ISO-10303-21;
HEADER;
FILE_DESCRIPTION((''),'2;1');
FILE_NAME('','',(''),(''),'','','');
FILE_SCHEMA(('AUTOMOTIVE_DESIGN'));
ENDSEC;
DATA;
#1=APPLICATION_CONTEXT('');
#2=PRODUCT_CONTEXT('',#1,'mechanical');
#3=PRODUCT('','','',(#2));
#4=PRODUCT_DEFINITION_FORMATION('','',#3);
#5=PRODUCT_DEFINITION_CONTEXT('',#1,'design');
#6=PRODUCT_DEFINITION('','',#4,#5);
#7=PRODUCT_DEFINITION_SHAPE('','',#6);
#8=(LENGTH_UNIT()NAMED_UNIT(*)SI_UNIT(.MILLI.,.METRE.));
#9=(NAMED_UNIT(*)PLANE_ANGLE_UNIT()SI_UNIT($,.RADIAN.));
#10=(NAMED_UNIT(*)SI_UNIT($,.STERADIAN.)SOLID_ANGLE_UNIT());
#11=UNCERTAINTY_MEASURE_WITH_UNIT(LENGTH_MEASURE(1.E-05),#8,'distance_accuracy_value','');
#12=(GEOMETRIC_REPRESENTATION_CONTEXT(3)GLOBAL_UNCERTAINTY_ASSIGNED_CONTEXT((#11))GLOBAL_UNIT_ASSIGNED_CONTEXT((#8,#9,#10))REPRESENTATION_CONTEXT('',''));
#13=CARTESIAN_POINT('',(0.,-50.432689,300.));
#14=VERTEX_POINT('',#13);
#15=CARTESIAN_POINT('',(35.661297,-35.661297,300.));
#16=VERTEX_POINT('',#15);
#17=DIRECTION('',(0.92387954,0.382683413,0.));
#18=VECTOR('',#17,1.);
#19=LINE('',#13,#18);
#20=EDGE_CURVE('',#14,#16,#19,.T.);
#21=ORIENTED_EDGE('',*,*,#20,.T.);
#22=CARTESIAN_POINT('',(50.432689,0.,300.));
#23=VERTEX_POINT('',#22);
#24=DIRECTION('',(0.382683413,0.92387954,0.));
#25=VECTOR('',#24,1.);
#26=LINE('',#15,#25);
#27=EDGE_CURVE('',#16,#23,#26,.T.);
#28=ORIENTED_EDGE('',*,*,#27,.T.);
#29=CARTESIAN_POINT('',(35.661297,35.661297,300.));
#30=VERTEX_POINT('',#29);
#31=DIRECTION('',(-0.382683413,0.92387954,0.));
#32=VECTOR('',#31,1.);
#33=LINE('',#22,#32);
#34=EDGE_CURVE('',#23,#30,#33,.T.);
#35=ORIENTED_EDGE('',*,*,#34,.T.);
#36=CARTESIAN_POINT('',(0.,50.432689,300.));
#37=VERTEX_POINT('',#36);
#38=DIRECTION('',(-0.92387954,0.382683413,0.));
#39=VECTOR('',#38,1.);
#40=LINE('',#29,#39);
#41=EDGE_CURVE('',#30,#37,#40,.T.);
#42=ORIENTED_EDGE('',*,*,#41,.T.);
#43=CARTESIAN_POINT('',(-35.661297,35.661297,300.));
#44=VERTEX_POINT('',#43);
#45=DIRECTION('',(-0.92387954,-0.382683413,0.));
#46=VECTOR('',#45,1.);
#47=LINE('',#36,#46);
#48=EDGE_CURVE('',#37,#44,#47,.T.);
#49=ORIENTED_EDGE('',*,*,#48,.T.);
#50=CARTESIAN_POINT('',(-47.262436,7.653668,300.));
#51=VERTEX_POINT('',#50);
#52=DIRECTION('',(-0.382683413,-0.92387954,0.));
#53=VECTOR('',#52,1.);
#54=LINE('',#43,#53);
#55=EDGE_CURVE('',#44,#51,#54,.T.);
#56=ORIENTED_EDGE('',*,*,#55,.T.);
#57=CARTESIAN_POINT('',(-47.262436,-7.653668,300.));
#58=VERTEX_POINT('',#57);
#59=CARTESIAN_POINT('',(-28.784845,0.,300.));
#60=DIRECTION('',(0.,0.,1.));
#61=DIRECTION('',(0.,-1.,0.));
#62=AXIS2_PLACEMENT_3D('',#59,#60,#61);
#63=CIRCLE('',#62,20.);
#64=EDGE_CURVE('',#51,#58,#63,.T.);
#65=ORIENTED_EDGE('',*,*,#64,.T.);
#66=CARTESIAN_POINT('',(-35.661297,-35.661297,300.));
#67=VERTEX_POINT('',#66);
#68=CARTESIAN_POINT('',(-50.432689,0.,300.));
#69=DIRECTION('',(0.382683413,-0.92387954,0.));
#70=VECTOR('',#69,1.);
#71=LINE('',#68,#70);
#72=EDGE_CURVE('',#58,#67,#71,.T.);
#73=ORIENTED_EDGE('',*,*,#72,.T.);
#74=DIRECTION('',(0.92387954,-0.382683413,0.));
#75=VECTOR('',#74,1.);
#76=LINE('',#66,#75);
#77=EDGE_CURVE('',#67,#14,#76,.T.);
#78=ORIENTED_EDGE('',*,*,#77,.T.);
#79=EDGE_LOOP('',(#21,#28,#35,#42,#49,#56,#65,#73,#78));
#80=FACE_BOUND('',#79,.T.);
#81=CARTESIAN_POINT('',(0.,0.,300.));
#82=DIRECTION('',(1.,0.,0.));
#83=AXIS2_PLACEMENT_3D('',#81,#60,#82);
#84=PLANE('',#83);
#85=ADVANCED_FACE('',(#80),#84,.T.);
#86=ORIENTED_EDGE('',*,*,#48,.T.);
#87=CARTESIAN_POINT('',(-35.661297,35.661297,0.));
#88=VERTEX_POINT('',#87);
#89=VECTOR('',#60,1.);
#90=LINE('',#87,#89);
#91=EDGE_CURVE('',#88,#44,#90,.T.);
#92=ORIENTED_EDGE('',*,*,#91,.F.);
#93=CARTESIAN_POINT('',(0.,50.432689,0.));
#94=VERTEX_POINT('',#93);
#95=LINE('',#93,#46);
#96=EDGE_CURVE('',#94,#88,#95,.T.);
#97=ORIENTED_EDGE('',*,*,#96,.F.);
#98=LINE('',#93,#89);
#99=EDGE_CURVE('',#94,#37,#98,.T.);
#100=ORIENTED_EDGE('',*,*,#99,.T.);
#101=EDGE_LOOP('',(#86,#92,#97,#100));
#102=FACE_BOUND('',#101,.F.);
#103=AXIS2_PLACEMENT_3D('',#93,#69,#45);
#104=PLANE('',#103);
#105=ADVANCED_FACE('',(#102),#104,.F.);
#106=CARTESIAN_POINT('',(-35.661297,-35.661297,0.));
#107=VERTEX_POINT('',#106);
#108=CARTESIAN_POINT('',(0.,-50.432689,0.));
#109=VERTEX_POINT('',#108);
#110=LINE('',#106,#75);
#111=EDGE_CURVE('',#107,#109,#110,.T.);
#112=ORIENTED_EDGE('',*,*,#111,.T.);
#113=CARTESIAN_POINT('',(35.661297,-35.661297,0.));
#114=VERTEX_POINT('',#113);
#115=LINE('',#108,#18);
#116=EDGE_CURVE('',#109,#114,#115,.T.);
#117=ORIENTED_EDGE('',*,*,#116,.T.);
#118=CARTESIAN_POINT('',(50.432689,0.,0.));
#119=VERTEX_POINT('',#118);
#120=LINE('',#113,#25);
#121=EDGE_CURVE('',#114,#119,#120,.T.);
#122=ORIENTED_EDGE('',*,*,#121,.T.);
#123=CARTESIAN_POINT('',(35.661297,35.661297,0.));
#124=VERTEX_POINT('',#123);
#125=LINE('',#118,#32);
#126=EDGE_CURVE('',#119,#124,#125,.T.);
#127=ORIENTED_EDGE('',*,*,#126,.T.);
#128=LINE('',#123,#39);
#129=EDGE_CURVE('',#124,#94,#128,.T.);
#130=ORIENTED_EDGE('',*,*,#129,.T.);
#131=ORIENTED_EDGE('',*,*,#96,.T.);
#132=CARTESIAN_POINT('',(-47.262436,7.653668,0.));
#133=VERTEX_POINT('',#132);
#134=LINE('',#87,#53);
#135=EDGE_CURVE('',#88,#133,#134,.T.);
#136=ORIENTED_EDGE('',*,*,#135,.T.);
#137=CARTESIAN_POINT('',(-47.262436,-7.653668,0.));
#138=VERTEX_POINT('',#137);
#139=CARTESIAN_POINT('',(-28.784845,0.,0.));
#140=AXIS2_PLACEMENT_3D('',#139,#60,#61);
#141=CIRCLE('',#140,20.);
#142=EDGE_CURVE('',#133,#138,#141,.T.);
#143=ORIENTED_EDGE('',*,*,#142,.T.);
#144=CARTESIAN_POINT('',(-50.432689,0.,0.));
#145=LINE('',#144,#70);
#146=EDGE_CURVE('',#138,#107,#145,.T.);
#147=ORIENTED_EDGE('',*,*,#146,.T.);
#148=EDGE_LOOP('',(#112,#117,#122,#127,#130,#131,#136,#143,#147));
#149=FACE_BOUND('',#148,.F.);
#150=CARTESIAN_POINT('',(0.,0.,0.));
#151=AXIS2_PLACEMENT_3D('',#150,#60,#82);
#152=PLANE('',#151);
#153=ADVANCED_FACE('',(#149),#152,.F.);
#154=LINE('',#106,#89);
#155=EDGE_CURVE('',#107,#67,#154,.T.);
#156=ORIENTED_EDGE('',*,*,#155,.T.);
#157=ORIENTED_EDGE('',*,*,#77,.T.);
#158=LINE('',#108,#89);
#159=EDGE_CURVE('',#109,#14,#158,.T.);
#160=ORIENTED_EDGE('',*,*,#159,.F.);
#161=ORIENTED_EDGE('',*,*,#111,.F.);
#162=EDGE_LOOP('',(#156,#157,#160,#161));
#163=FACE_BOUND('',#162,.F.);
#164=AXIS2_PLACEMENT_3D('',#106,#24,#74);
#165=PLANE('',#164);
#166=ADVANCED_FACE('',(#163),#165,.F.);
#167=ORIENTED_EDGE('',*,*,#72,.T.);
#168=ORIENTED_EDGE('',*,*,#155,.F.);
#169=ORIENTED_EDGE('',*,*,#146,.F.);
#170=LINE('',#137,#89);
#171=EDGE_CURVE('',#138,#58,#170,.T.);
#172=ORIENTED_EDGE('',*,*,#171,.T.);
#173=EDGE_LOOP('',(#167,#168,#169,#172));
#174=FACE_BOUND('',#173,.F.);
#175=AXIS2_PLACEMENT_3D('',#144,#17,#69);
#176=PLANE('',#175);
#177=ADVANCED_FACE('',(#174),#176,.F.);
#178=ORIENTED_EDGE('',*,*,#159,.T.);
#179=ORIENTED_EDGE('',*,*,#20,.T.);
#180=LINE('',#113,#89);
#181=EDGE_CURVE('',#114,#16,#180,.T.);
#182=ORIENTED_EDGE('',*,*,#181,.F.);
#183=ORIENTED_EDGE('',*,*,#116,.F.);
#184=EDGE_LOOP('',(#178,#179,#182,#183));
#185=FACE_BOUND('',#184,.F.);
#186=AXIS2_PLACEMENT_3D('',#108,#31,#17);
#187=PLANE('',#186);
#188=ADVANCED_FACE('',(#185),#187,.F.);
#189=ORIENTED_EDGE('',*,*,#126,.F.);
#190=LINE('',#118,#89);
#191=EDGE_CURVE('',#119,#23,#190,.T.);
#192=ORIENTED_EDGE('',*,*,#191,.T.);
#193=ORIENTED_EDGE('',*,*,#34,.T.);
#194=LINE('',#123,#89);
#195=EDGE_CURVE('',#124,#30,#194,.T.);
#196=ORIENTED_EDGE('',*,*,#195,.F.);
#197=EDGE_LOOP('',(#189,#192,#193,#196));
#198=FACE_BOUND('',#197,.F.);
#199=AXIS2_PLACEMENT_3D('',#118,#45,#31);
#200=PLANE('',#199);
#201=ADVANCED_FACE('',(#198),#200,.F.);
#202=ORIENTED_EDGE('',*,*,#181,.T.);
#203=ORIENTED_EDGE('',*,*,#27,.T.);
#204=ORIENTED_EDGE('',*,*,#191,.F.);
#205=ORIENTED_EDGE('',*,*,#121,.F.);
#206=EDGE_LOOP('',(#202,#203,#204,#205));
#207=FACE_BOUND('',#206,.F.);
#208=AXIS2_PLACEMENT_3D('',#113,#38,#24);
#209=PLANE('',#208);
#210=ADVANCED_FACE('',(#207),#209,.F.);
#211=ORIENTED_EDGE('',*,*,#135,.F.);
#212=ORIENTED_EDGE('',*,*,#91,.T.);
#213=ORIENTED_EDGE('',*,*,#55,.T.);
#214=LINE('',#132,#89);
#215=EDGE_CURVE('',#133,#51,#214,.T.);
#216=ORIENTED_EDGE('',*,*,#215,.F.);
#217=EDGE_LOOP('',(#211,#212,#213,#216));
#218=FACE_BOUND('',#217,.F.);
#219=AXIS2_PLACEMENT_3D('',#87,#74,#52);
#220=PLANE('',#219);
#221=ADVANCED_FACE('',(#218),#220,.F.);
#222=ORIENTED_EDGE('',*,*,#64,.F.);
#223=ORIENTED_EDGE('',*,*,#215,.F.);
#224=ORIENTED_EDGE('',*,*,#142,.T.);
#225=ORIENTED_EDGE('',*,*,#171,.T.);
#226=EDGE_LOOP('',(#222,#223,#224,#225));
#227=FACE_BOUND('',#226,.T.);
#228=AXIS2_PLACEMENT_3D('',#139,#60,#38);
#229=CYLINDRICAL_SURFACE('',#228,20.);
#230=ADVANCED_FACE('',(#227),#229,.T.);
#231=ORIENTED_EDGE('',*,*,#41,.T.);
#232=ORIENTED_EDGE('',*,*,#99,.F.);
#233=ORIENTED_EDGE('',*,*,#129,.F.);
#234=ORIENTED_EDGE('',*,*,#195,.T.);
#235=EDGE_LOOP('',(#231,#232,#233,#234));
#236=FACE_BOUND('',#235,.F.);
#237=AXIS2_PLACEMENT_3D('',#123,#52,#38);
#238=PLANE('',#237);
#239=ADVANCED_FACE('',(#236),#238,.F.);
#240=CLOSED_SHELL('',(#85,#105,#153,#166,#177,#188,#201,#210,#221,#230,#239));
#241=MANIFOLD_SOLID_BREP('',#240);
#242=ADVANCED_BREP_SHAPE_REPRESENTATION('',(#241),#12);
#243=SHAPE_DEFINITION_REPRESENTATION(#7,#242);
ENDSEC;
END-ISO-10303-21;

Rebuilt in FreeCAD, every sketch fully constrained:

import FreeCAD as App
import Part
import Sketcher
from FreeCAD import Vector
Q = App.Units.Quantity


def edges_at(feature, points):
    """Names of the edges that pass closest to the given points."""
    edges = feature.Shape.Edges
    near = lambda p: min(range(len(edges)), key=lambda i: edges[i].distToShape(Part.Vertex(*p))[0])
    return sorted({f"Edge{near(p) + 1}" for p in points})


def add_polygon(sketch, points):
    """Adds a closed chain of lines whose ends are joined by coincident constraints."""
    first, n = sketch.GeometryCount, len(points)
    for a, b in zip(points, points[1:] + points[:1]):
        sketch.addGeometry(Part.LineSegment(App.Vector(*a, 0), App.Vector(*b, 0)), False)
    for i in range(n):
        sketch.addConstraint(Sketcher.Constraint("Coincident", first + i, 2, first + (i + 1) % n, 1))

doc = App.newDocument("Part")
body = doc.addObject("PartDesign::Body", "Body")

sketch1 = doc.addObject("Sketcher::SketchObject", "Sketch")
body.addObject(sketch1)
sketch1.AttachmentSupport = (doc.XY_Plane, [""])
sketch1.MapMode = "FlatFace"
add_polygon(sketch1, [(36, 36), (0, 50), (-36, 36), (-50, 0), (-36, -36), (0, -50), (36, -36), (50, 0)])
sketch1.addConstraint([
    Sketcher.Constraint("Symmetric", 0, 2, 4, 2, -1, 1),
    Sketcher.Constraint("Symmetric", 1, 2, 5, 2, -1, 1),
    Sketcher.Constraint("Symmetric", 2, 2, 6, 2, -1, 1),
    Sketcher.Constraint("Symmetric", 3, 2, 7, 2, -1, 1),
    Sketcher.Constraint("Symmetric", 3, 2, 5, 2, -2),
    Sketcher.Constraint("PointOnObject", 0, 2, -2),
    Sketcher.Constraint("PointOnObject", 2, 2, -1),
    Sketcher.Constraint("Perpendicular", 0, 2),
    Sketcher.Constraint("Equal", 1, 2),
    Sketcher.Constraint("Angle", 0, Q("157.500001 deg")),
    Sketcher.Constraint("Distance", 0, Q("38.599509 mm")),
])
pad1 = doc.addObject("PartDesign::Pad", "Pad")
body.addObject(pad1)
pad1.Profile = sketch1
pad1.Length = 300
doc.recompute()

fillet = doc.addObject("PartDesign::Fillet", "Fillet")
body.addObject(fillet)
fillet.Base = (pad1, edges_at(pad1, [(-50.433, 0, 150)]))
fillet.Radius = 20

doc.recompute()
